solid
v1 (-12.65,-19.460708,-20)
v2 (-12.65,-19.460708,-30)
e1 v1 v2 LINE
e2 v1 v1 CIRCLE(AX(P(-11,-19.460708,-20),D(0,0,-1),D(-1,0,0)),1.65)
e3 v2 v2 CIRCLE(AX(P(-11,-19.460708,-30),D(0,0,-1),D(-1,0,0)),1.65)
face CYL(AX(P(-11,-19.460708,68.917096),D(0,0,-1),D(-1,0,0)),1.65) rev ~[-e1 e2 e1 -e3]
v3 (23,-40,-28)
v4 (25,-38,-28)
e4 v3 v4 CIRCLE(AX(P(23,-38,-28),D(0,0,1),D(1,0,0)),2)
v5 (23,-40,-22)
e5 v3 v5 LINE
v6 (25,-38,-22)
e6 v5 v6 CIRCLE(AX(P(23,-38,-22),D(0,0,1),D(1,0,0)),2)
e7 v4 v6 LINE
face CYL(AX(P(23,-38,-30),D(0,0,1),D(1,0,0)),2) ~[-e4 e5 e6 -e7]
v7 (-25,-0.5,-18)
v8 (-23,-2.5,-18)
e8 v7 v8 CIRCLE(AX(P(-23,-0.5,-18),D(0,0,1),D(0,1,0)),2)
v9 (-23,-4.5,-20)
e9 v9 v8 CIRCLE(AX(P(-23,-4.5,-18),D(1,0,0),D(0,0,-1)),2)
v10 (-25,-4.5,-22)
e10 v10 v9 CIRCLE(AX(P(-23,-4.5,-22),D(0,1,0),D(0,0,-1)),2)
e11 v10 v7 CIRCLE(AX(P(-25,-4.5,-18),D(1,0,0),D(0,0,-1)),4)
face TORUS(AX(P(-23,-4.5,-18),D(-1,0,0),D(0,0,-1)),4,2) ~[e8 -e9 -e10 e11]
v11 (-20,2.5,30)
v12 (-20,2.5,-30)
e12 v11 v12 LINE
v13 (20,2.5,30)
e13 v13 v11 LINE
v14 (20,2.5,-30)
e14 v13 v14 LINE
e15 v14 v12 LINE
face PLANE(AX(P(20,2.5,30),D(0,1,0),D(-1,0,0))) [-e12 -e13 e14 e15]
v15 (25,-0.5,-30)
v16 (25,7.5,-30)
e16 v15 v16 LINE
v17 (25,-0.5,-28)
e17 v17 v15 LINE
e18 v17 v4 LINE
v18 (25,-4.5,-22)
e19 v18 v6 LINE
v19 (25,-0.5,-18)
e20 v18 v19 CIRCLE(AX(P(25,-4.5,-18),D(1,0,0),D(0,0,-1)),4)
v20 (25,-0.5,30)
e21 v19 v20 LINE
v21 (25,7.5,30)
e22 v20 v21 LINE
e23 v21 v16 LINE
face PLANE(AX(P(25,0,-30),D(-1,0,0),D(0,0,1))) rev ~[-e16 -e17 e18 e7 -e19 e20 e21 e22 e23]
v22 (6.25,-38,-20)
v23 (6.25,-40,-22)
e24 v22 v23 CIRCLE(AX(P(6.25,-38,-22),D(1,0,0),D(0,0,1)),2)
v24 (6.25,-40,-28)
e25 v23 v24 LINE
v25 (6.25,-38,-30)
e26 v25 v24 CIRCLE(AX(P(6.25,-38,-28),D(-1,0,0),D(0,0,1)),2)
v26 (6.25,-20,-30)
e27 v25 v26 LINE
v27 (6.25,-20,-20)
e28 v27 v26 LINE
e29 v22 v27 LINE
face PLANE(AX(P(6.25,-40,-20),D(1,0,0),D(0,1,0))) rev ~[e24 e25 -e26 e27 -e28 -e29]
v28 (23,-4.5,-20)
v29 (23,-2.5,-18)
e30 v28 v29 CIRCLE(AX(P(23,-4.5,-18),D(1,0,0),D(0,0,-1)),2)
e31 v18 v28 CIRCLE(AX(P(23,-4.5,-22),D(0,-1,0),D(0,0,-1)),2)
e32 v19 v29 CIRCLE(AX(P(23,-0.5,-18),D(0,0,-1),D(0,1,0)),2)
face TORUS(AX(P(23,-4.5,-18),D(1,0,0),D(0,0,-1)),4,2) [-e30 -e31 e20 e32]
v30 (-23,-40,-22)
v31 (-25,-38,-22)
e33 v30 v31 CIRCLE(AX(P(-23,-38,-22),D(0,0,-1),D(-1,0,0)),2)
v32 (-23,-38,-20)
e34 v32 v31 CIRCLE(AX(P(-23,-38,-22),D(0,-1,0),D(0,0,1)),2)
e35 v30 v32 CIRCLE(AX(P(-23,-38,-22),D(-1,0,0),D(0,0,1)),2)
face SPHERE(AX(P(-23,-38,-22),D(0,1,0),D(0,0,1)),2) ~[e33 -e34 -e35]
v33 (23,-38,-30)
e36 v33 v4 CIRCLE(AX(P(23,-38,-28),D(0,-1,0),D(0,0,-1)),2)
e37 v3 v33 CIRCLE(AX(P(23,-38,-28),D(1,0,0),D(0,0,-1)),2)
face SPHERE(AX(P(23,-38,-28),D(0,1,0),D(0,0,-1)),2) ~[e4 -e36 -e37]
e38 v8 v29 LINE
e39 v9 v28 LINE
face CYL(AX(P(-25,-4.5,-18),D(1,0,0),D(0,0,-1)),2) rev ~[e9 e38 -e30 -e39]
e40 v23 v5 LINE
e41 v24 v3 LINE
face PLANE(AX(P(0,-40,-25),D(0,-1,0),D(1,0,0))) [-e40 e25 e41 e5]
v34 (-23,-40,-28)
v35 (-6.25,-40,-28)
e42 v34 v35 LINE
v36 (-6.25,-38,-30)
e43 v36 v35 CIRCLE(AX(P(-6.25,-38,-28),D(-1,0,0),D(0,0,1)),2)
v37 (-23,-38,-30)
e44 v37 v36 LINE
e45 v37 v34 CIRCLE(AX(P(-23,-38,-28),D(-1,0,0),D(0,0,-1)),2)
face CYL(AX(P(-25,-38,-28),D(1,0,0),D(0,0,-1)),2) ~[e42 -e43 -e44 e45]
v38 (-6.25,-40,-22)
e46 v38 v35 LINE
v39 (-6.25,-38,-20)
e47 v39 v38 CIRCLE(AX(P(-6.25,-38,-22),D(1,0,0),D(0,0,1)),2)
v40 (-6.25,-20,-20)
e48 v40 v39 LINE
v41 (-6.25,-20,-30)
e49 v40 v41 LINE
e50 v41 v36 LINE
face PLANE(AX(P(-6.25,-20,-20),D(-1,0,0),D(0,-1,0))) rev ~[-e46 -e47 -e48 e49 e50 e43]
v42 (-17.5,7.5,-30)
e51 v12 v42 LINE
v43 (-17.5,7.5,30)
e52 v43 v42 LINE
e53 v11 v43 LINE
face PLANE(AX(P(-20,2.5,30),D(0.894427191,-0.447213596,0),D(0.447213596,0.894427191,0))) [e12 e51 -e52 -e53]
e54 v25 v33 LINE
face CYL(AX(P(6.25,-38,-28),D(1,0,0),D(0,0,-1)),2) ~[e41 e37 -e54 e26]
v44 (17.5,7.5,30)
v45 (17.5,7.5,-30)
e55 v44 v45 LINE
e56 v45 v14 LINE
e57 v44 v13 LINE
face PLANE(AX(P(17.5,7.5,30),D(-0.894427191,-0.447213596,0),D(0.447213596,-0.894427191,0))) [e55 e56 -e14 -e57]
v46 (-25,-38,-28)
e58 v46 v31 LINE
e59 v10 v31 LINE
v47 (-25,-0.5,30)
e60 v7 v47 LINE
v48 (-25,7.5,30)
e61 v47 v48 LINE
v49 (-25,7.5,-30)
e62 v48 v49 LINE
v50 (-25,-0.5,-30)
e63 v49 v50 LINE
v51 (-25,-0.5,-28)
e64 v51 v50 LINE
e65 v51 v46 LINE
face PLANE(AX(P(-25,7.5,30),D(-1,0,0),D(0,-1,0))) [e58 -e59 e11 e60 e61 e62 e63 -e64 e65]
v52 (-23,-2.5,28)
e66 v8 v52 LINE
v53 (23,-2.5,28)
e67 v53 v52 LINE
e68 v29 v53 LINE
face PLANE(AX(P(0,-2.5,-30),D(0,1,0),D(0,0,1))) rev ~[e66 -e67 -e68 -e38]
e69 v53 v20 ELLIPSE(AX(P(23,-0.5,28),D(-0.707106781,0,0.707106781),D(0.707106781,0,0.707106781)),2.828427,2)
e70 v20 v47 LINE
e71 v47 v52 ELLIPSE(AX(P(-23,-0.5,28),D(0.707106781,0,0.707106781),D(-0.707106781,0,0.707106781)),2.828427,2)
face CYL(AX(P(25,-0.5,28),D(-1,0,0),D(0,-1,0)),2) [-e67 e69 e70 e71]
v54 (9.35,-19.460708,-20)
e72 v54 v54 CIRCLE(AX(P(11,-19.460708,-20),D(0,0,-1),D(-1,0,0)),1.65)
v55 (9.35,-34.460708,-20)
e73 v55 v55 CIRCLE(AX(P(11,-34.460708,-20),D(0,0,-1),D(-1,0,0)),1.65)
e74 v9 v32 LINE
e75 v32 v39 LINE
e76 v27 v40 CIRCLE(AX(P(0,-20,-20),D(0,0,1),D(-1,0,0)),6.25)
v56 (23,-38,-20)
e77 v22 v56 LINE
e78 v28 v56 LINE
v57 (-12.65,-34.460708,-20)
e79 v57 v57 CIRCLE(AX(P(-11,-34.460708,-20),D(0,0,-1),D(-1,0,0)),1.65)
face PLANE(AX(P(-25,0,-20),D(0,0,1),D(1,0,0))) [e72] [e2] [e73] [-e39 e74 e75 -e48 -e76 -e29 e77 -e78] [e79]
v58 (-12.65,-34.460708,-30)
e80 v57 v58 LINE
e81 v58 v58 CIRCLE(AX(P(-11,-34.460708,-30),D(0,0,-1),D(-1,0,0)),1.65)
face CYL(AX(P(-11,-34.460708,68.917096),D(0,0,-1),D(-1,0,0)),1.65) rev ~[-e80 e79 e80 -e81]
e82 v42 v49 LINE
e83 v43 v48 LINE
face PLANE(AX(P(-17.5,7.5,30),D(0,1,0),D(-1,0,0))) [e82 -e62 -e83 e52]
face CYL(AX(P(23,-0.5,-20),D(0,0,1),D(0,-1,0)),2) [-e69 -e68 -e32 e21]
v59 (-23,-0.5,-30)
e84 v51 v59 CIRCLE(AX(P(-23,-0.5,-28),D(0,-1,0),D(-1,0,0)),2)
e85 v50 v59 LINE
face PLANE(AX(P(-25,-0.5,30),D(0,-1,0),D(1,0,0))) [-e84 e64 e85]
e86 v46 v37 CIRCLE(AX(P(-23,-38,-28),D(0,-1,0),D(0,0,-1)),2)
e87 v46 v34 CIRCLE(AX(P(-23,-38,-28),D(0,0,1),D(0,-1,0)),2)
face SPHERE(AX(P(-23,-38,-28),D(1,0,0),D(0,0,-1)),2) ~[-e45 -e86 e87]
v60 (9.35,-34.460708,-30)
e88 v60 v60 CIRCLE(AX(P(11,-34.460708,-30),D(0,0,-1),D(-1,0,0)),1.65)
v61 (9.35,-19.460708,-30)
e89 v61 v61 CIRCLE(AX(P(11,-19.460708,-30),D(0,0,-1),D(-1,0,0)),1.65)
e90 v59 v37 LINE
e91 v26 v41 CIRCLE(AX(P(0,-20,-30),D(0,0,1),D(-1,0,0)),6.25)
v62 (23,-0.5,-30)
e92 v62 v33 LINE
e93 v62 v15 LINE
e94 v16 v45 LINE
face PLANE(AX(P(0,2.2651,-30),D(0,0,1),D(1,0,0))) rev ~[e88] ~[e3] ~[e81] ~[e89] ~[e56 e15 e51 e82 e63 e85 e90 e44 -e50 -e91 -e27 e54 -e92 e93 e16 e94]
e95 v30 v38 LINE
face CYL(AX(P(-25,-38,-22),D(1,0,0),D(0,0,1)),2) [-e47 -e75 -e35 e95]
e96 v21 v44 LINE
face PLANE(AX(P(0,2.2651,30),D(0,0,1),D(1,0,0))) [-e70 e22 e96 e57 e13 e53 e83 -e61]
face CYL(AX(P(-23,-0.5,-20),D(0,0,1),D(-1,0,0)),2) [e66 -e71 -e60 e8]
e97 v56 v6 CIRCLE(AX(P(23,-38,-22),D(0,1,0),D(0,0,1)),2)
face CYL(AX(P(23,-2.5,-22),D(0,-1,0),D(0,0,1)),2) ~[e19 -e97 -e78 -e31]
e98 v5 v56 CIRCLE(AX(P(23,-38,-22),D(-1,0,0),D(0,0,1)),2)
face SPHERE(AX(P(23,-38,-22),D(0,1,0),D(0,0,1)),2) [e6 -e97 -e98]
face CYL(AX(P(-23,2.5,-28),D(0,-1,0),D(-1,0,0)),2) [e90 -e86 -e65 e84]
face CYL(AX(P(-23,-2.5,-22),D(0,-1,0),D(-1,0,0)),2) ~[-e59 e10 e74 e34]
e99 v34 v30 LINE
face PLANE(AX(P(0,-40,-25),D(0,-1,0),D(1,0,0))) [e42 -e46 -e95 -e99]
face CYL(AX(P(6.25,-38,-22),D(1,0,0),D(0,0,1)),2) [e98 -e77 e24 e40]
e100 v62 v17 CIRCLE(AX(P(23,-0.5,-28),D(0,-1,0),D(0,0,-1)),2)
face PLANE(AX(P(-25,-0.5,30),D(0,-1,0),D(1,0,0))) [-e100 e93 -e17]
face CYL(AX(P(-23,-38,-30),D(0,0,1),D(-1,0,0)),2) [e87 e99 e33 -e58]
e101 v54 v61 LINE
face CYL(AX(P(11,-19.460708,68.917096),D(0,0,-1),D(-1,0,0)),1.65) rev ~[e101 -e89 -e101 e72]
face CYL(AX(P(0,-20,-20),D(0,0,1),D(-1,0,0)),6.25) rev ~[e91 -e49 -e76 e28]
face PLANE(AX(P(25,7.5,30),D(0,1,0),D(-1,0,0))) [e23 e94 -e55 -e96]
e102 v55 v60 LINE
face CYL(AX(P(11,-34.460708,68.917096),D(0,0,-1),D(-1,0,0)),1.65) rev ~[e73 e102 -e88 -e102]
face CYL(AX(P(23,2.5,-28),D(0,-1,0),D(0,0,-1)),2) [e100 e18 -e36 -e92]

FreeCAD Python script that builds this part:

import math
import FreeCAD as App
import Part
import Sketcher


def edges_at(feature, points):
    """Names of the edges that pass closest to the given points."""
    edges = feature.Shape.Edges
    near = lambda p: min(range(len(edges)), key=lambda i: edges[i].distToShape(Part.Vertex(*p))[0])
    return sorted({f"Edge{near(p) + 1}" for p in points})


def add_polygon(sketch, points):
    """Adds a closed chain of lines whose ends are joined by coincident constraints."""
    first, n = sketch.GeometryCount, len(points)
    for a, b in zip(points, points[1:] + points[:1]):
        sketch.addGeometry(Part.LineSegment(App.Vector(*a, 0), App.Vector(*b, 0)), False)
    for i in range(n):
        sketch.addConstraint(Sketcher.Constraint("Coincident", first + i, 2, first + (i + 1) % n, 1))

doc = App.newDocument("Part")
body = doc.addObject("PartDesign::Body", "Body")

sketch1 = doc.addObject("Sketcher::SketchObject", "Sketch")
body.addObject(sketch1)
sketch1.AttachmentSupport = (doc.YZ_Plane, [""])
sketch1.MapMode = "FlatFace"
add_polygon(sketch1, [(-2, 30), (-2, -30), (2, -30), (2, 30)])
sketch1.addConstraint([
    Sketcher.Constraint("Vertical", 0),
    Sketcher.Constraint("Horizontal", 1),
    Sketcher.Constraint("Vertical", 2),
    Sketcher.Constraint("Horizontal", 3),
    Sketcher.Constraint("Symmetric", 0, 2, 2, 2, -1, 1),
    Sketcher.Constraint("DistanceX", 1, 1, 1, 2, 5.0),
    Sketcher.Constraint("DistanceY", 0, 2, 0, 1, 60.0),
])
pad1 = doc.addObject("PartDesign::Pad", "Pad")
body.addObject(pad1)
pad1.Profile = sketch1
pad1.Type = "TwoLengths"
pad1.Length = 25
pad1.Length2 = 25

sketch2 = doc.addObject("Sketcher::SketchObject", "Sketch001")
body.addObject(sketch2)
sketch2.AttachmentSupport = (doc.XZ_Plane, [""])
sketch2.MapMode = "FlatFace"
add_polygon(sketch2, [(-25, -20), (-25, -30), (25, -30), (25, -20)])
sketch2.addConstraint([
    Sketcher.Constraint("Vertical", 0),
    Sketcher.Constraint("Horizontal", 1),
    Sketcher.Constraint("Vertical", 2),
    Sketcher.Constraint("Horizontal", 3),
    Sketcher.Constraint("DistanceX", 1, 1, 1, 2, 50.0),
    Sketcher.Constraint("DistanceY", 0, 2, 0, 1, 10.0),
    Sketcher.Constraint("DistanceX", 0, 2, -1, 1, 25.0),
    Sketcher.Constraint("DistanceY", 0, 2, -1, 1, 30.0),
])
pad2 = doc.addObject("PartDesign::Pad", "Pad001")
body.addObject(pad2)
pad2.Profile = sketch2
pad2.Length = 40

sketch3 = doc.addObject("Sketcher::SketchObject", "Sketch002")
body.addObject(sketch3)
sketch3.AttachmentSupport = (doc.XY_Plane, [""])
sketch3.MapMode = "FlatFace"
sketch3.AttachmentOffset = App.Placement(App.Vector(0, 0, -20), App.Rotation())
sketch3.addGeometry([
    Part.LineSegment(App.Vector(-6, -20, 0), App.Vector(-6, -40, 0)),
    Part.LineSegment(App.Vector(-6, -40, 0), App.Vector(6, -40, 0)),
    Part.LineSegment(App.Vector(6, -40, 0), App.Vector(6, -20, 0)),
    Part.ArcOfCircle(Part.Circle(App.Vector(0, -20, 0), App.Vector(0, 0, 1), 6), math.radians(0), math.radians(180)),
], False)
sketch3.addConstraint([
    Sketcher.Constraint("Coincident", 0, 2, 1, 1),
    Sketcher.Constraint("Coincident", 1, 2, 2, 1),
    Sketcher.Constraint("Tangent", 2, 2, 3, 1),
    Sketcher.Constraint("Tangent", 3, 2, 0, 1),
    Sketcher.Constraint("Vertical", 0),
    Sketcher.Constraint("Horizontal", 1),
    Sketcher.Constraint("Vertical", 2),
    Sketcher.Constraint("PointOnObject", 3, 3, -2),
    Sketcher.Constraint("DistanceY", 0, 2, 0, 1, 20.0),
    Sketcher.Constraint("Radius", 3, 6.25),
    Sketcher.Constraint("DistanceY", 3, 3, -1, 1, 20.0),
])
pocket1 = doc.addObject("PartDesign::Pocket", "Pocket")
body.addObject(pocket1)
pocket1.Profile = sketch3
pocket1.Length = 25
doc.recompute()

fillet = doc.addObject("PartDesign::Fillet", "Fillet")
body.addObject(fillet)
fillet.Base = (pocket1, edges_at(pocket1, [
    (-25, -21.25, -20),
    (-25, -2.5, 5),
    (25, -21.25, -20),
    (25, -2.5, 5),
    (-15.625, -40, -20),
    (15.625, -40, -20),
    (-15.625, -40, -30),
    (-25, -18.75, -30),
    (25, -18.75, -30),
    (15.625, -40, -30),
    (25, -40, -25),
    (-25, -40, -25),
    (0, -2.5, 30),
    (0, -2.5, -20),
]))
fillet.Radius = 2

sketch4 = doc.addObject("Sketcher::SketchObject", "Sketch003")
body.addObject(sketch4)
sketch4.AttachmentSupport = (doc.XY_Plane, [""])
sketch4.MapMode = "FlatFace"
sketch4.AttachmentOffset = App.Placement(App.Vector(0, 0, -20), App.Rotation())
sketch4.addGeometry([
    Part.Circle(App.Vector(-11, -19.5, 0), App.Vector(0, 0, 1), 1.6),
    Part.Circle(App.Vector(11, -19.5, 0), App.Vector(0, 0, 1), 1.6),
    Part.Circle(App.Vector(11, -34.5, 0), App.Vector(0, 0, 1), 1.6),
    Part.Circle(App.Vector(-11, -34.5, 0), App.Vector(0, 0, 1), 1.6),
], False)
sketch4.addConstraint([
    Sketcher.Constraint("Equal", 0, 1),
    Sketcher.Constraint("Equal", 1, 2),
    Sketcher.Constraint("Equal", 2, 3),
    Sketcher.Constraint("Symmetric", 0, 3, 1, 3, -2),
    Sketcher.Constraint("Symmetric", 2, 3, 3, 3, -2),
    Sketcher.Constraint("Vertical", 1, 3, 2, 3),
    Sketcher.Constraint("Diameter", 0, 3.3),
    Sketcher.Constraint("DistanceX", 0, 3, -1, 1, 11.0),
    Sketcher.Constraint("DistanceY", 2, 3, 1, 3, 15.0),
    Sketcher.Constraint("DistanceY", 0, 3, -1, 1, 19.460708),
])
doc.recompute()
hole = doc.addObject("PartDesign::Hole", "Hole")
body.addObject(hole)
hole.Profile = sketch4
hole.ThreadType = "None"
hole.Diameter = 3.3
hole.DepthType = "ThroughAll"

sketch5 = doc.addObject("Sketcher::SketchObject", "Sketch004")
body.addObject(sketch5)
sketch5.AttachmentSupport = (doc.XY_Plane, [""])
sketch5.MapMode = "FlatFace"
sketch5.AttachmentOffset = App.Placement(App.Vector(0, 0, 30), App.Rotation())
add_polygon(sketch5, [(-25, 8), (-25, 0), (25, 0), (25, 8), (18, 8), (20, 2), (-20, 2), (-18, 8)])
sketch5.addConstraint([
    Sketcher.Constraint("Vertical", 0),
    Sketcher.Constraint("Horizontal", 1),
    Sketcher.Constraint("Vertical", 2),
    Sketcher.Constraint("Horizontal", 3),
    Sketcher.Constraint("Horizontal", 5),
    Sketcher.Constraint("Horizontal", 7),
    Sketcher.Constraint("Symmetric", 3, 2, 6, 2, -2),
    Sketcher.Constraint("Equal", 3, 7),
    Sketcher.Constraint("Equal", 4, 6),
    Sketcher.Constraint("DistanceX", 1, 1, 1, 2, 50.0),
    Sketcher.Constraint("DistanceX", 5, 2, 5, 1, 40.0),
    Sketcher.Constraint("DistanceY", 0, 2, 0, 1, 8.0),
    Sketcher.Constraint("DistanceX", 3, 2, 3, 1, 7.5),
    Sketcher.Constraint("DistanceY", 4, 2, 3, 2, 5.0),
    Sketcher.Constraint("DistanceY", 0, 2, -1, 1, 0.5),
])
pad3 = doc.addObject("PartDesign::Pad", "Pad002")
body.addObject(pad3)
pad3.Profile = sketch5
pad3.Length = 60
pad3.Reversed = True

doc.recompute()
